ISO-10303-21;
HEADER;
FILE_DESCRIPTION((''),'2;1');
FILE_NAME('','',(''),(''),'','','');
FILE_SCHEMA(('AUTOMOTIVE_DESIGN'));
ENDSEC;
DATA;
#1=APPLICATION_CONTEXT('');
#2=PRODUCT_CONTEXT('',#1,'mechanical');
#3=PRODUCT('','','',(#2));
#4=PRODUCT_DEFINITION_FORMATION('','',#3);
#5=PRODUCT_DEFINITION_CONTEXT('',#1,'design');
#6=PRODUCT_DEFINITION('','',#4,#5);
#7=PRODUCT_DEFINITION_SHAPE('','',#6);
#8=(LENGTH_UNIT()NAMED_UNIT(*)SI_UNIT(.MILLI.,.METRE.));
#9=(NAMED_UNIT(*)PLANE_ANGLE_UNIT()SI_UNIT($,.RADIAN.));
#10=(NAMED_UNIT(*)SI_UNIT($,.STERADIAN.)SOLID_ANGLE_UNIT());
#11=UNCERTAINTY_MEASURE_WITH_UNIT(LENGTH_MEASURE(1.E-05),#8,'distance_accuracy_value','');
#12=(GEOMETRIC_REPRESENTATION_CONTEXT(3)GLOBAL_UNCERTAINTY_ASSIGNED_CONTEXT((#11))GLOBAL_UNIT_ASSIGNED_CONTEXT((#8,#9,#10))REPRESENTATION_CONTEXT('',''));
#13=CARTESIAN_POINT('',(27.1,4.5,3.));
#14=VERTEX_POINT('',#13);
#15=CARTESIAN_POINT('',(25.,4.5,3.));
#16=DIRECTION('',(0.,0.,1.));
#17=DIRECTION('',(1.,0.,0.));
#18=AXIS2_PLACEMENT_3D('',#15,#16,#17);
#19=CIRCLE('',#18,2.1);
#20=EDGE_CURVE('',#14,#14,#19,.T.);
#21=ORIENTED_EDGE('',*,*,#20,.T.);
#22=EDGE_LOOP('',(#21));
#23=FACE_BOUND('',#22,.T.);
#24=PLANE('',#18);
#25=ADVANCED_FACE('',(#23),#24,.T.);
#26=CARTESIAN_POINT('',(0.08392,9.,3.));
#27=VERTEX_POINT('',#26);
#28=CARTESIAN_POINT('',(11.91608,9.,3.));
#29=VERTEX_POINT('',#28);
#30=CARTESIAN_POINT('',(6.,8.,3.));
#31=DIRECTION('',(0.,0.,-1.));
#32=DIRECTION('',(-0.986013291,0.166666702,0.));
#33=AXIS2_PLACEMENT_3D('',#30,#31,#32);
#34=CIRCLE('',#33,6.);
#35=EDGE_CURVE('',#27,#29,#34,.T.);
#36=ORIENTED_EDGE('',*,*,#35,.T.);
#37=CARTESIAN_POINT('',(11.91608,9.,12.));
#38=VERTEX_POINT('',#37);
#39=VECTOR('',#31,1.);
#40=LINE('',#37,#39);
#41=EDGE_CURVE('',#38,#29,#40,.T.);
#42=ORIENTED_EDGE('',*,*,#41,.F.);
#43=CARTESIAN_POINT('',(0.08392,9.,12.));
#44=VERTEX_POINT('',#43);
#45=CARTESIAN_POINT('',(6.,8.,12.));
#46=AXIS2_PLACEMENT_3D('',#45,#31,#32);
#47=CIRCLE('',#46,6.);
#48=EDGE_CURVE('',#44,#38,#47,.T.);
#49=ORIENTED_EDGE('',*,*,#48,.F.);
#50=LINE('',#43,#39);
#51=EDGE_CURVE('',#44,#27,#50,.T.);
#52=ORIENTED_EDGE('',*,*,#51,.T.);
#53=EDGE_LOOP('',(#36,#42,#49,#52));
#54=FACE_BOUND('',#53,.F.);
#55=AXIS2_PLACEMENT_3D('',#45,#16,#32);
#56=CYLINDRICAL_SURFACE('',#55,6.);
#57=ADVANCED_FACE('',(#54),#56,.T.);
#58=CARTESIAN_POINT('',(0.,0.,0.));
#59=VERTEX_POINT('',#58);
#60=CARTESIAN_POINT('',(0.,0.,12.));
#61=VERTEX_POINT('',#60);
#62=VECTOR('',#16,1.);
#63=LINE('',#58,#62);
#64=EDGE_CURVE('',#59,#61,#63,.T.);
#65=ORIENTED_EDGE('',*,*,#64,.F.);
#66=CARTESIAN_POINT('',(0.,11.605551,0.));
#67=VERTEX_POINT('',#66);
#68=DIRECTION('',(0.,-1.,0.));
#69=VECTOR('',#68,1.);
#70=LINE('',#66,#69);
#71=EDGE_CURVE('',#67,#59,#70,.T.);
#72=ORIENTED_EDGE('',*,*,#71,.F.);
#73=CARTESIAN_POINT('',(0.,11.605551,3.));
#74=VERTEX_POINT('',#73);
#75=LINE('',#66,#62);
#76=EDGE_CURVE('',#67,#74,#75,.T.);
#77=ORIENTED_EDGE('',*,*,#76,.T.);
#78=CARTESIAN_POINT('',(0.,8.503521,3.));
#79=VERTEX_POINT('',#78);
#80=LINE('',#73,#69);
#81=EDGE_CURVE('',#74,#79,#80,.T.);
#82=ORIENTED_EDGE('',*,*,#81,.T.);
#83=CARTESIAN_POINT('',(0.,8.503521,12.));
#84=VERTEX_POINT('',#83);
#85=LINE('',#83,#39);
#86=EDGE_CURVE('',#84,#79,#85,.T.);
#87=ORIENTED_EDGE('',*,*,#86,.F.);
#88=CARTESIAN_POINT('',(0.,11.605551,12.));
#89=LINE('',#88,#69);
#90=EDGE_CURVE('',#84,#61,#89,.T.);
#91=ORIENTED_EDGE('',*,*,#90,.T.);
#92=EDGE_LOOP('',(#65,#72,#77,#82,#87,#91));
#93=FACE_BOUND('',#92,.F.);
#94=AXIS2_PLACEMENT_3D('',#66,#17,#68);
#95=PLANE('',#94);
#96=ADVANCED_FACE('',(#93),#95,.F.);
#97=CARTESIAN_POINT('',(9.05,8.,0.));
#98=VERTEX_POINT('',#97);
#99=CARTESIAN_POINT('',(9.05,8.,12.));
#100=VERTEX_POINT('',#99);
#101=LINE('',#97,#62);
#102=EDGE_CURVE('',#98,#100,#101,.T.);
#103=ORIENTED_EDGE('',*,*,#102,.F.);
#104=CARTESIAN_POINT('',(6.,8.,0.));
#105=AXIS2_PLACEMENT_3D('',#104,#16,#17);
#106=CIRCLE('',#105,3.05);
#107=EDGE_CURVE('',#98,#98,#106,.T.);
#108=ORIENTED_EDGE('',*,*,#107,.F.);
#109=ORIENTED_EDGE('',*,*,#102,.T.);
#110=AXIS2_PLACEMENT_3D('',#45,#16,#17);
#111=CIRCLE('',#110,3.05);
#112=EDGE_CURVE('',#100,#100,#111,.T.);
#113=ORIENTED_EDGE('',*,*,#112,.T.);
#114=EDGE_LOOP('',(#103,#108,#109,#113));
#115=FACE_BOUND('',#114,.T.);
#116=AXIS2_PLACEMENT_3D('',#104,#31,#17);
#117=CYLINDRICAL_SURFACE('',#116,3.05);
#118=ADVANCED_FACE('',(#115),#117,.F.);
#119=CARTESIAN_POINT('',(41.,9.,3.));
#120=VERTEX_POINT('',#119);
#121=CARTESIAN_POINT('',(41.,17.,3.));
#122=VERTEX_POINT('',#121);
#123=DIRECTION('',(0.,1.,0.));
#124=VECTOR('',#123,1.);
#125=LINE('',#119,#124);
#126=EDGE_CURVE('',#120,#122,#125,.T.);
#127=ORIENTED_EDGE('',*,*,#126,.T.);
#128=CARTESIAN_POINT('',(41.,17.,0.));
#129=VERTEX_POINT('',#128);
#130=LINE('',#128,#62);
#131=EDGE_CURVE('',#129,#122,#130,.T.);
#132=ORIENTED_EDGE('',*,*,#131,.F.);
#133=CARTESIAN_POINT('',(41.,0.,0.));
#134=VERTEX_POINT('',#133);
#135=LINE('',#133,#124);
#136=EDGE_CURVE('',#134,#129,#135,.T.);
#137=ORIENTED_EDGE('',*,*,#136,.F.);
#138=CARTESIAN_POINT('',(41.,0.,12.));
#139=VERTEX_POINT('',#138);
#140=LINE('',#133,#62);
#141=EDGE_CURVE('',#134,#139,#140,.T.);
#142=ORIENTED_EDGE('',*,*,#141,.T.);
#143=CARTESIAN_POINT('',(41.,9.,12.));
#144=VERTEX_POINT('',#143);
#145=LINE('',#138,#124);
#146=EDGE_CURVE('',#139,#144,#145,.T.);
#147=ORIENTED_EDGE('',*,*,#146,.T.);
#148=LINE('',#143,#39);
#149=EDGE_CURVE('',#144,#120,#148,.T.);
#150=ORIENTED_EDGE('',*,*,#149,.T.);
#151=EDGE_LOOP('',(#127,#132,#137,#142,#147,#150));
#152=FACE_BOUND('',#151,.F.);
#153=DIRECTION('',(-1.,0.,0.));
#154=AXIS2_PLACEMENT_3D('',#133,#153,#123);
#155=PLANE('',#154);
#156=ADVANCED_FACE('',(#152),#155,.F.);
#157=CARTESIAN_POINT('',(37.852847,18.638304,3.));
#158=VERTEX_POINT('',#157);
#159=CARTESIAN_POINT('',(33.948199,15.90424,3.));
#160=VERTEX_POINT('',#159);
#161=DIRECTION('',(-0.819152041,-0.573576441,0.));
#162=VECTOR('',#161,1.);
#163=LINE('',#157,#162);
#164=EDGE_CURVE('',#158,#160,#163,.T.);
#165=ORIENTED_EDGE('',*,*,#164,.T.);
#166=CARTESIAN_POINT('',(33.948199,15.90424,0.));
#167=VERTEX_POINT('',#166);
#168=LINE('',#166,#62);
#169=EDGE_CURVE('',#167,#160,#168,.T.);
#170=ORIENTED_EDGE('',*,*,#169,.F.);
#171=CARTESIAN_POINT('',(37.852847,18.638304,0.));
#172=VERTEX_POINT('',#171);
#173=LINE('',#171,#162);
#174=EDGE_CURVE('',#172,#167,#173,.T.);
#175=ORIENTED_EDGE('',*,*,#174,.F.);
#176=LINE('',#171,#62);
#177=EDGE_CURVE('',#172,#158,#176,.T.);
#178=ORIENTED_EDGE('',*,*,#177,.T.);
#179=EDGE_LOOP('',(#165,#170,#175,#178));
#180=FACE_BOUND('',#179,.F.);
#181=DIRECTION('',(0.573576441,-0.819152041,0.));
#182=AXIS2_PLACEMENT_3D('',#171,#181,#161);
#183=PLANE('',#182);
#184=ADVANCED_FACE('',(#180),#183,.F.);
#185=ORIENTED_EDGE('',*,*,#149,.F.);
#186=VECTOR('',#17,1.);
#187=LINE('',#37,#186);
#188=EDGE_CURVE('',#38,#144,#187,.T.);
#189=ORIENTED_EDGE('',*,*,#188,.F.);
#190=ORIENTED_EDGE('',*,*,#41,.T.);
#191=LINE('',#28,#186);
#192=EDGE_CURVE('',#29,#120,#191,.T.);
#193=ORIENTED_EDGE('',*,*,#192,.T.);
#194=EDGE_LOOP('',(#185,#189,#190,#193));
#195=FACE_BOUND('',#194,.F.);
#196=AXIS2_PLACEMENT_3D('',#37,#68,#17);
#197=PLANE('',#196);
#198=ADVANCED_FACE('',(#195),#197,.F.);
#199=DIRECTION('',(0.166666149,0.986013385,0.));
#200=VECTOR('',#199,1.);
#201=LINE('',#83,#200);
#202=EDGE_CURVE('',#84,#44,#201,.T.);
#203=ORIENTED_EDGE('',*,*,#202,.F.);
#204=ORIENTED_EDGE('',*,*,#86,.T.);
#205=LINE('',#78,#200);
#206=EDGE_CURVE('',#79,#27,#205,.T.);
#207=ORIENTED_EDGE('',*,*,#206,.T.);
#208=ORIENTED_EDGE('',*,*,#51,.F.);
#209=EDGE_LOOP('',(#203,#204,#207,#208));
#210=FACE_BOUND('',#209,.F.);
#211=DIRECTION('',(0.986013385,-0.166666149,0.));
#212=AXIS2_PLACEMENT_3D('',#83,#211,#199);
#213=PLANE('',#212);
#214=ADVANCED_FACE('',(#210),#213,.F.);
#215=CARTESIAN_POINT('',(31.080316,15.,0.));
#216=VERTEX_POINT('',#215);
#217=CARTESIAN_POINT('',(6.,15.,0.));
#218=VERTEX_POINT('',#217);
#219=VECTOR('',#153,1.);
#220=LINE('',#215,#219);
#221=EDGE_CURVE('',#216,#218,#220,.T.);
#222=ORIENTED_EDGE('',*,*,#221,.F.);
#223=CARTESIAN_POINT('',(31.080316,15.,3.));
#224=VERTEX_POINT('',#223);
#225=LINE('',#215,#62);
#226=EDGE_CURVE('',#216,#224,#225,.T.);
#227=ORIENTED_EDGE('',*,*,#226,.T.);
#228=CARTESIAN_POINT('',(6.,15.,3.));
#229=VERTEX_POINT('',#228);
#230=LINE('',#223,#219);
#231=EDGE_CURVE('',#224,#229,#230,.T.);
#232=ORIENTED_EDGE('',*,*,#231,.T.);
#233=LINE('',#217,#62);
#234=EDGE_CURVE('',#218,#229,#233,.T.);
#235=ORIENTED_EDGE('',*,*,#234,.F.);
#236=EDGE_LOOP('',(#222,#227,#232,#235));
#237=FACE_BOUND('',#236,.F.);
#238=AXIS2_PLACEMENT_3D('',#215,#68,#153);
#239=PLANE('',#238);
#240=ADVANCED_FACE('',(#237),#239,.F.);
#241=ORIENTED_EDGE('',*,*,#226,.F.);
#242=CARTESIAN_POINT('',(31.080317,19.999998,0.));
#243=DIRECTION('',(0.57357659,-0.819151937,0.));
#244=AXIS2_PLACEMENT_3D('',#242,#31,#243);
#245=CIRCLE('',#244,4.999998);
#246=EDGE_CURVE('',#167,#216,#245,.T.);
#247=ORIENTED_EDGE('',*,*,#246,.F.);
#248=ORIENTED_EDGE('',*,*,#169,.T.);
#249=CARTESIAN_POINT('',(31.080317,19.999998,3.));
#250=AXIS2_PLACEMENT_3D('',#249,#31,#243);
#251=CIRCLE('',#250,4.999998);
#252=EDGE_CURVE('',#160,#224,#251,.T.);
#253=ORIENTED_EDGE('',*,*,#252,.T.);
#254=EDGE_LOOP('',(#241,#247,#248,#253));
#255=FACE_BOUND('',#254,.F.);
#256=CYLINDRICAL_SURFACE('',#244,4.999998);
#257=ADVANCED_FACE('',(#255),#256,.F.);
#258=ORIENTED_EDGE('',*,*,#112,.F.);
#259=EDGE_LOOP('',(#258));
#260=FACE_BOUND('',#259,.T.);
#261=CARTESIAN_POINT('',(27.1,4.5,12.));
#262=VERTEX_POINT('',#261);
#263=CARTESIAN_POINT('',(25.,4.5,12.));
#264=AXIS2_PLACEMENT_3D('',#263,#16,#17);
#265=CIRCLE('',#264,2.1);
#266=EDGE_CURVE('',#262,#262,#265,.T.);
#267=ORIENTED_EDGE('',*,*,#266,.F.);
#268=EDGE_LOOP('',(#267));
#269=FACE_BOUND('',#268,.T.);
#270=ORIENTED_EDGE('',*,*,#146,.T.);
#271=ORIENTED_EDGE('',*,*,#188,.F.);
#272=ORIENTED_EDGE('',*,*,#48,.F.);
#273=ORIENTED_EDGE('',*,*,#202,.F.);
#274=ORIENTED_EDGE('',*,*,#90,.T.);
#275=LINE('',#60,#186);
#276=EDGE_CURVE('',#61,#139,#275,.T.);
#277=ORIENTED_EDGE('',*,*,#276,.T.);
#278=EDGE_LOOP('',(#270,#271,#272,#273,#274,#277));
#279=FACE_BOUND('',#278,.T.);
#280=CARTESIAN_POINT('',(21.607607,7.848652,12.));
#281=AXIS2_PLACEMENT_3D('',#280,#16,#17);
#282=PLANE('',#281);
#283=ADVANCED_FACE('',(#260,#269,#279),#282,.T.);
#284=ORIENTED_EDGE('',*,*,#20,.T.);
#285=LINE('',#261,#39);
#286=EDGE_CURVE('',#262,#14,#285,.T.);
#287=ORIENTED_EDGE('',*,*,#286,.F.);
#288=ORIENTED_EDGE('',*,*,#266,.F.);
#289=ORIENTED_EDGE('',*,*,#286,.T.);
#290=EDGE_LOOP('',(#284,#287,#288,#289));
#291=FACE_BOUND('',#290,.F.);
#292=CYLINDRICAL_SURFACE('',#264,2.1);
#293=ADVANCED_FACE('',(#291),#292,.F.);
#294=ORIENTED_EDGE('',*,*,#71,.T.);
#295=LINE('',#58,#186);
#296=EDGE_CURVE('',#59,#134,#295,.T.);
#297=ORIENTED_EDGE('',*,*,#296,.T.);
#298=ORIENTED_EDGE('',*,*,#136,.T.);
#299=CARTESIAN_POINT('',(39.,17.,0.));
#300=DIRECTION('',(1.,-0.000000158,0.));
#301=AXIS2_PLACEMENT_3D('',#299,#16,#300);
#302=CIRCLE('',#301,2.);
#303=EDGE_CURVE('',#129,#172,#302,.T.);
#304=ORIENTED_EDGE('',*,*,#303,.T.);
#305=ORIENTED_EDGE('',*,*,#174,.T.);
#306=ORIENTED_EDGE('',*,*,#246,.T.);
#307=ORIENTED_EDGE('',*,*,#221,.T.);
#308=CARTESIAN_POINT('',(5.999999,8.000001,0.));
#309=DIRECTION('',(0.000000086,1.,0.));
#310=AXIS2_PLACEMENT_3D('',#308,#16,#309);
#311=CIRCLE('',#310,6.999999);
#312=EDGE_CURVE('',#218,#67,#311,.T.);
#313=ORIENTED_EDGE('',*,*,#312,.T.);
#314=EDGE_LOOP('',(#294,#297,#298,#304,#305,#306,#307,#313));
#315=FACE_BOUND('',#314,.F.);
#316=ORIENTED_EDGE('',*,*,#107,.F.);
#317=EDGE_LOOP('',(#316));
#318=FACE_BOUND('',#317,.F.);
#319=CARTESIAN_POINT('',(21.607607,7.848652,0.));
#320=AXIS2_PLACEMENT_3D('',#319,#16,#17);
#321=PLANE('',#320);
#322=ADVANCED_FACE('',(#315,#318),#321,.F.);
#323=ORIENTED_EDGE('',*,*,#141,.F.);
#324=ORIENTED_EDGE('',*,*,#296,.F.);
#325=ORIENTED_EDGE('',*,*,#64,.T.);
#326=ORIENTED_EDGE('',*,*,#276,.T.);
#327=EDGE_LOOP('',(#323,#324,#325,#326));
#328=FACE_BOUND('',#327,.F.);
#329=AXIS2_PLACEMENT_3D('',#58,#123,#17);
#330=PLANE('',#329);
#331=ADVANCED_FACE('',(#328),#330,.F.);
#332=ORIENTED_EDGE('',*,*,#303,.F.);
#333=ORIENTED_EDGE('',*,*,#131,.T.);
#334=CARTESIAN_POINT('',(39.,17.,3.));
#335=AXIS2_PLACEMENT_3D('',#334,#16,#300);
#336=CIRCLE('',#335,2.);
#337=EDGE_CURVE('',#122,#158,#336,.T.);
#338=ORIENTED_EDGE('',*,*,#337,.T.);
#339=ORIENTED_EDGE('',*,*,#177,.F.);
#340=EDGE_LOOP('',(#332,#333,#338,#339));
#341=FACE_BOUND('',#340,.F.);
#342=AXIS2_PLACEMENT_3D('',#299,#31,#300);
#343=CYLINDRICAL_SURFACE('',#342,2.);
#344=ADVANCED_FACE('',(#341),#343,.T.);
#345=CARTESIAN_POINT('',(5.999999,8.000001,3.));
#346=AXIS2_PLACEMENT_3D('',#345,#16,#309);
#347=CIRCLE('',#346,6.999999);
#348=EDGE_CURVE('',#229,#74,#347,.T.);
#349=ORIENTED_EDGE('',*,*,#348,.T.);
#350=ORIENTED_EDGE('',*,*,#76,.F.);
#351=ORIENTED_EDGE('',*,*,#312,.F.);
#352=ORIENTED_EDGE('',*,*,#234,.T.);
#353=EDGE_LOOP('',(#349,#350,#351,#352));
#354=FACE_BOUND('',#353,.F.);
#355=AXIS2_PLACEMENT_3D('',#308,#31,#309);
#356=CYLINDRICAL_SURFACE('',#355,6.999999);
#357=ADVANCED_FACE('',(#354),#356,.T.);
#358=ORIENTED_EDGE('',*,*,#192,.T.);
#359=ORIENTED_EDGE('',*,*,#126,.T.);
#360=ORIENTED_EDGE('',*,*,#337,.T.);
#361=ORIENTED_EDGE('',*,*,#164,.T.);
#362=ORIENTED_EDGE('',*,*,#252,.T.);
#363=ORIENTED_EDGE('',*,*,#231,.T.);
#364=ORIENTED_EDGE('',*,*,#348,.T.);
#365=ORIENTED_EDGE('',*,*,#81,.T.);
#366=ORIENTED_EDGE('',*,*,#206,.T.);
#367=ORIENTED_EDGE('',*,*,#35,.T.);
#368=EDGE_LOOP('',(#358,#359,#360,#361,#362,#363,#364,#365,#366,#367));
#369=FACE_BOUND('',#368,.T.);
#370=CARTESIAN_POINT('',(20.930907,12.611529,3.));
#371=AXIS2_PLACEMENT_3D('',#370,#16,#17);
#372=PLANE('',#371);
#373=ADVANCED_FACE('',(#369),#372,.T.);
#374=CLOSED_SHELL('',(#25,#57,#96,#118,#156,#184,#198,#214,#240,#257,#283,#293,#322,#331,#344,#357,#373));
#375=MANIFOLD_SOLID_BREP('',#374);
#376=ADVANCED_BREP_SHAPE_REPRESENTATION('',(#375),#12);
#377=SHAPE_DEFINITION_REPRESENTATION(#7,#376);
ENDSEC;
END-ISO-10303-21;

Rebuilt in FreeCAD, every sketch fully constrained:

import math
import FreeCAD as App
import Part
import Sketcher

V = App.Vector
Q = App.Units.Quantity

doc = App.newDocument("Part")
body = doc.addObject("PartDesign::Body", "Body")

# Sketch on XY plane
sketch1 = body.newObject("Sketcher::SketchObject", "Sketch")
sketch1.AttachmentSupport = (doc.getObject("XY_Plane"), [""])
sketch1.MapMode = "FlatFace"
sketch1.addGeometry([
    Part.LineSegment(V(0, 11.6, 0), V(0, 0, 0)),  # 0
    Part.LineSegment(V(0, 0, 0), V(41, 0, 0)),  # 1
    Part.LineSegment(V(41, 0, 0), V(41, 17, 0)),  # 2
    Part.ArcOfCircle(Part.Circle(V(39, 17, 0), V(0, 0, 1), 2), math.radians(0), math.radians(125)),  # 3
    Part.LineSegment(V(37.9, 18.6, 0), V(33.9, 15.9, 0)),  # 4
    Part.ArcOfCircle(Part.Circle(V(31.1, 20, 0), V(0, 0, 1), 5), math.radians(-90), math.radians(-55)),  # 5
    Part.LineSegment(V(31.1, 15, 0), V(6, 15, 0)),  # 6
    Part.ArcOfCircle(Part.Circle(V(6, 8, 0), V(0, 0, 1), 7), math.radians(90), math.radians(149)),  # 7
    Part.Circle(V(6, 8, 0), V(0, 0, 1), 3),  # 8
], False)
sketch1.addConstraint([
    Sketcher.Constraint("Coincident", 0, 2, 1, 1),
    Sketcher.Constraint("Coincident", 1, 2, 2, 1),
    Sketcher.Constraint("Tangent", 2, 2, 3, 1),
    Sketcher.Constraint("Tangent", 3, 2, 4, 1),
    Sketcher.Constraint("Tangent", 4, 2, 5, 2),
    Sketcher.Constraint("Tangent", 5, 1, 6, 1),
    Sketcher.Constraint("Tangent", 6, 2, 7, 1),
    Sketcher.Constraint("Coincident", 7, 2, 0, 1),
    Sketcher.Constraint("Vertical", 0),
    Sketcher.Constraint("Horizontal", 1),
    Sketcher.Constraint("Vertical", 2),
    Sketcher.Constraint("Horizontal", 6),
    Sketcher.Constraint("Coincident", 0, 2, -1, 1),
    Sketcher.Constraint("Coincident", 8, 3, 7, 3),
    Sketcher.Constraint("Radius", 3, Q("2 mm")),
    Sketcher.Constraint("Radius", 5, Q("4.999998 mm")),
    Sketcher.Constraint("Radius", 7, Q("6.999999 mm")),
    Sketcher.Constraint("Diameter", 8, Q("6.1 mm")),
    Sketcher.Constraint("DistanceX", 1, 1, 1, 2, Q("41 mm")),
    Sketcher.Constraint("DistanceY", 2, 1, 2, 2, Q("17 mm")),
    Sketcher.Constraint("Angle", 4, Q("-145 deg")),
    Sketcher.Constraint("DistanceY", -1, 1, 5, 3, Q("19.999998 mm")),
    Sketcher.Constraint("DistanceX", -1, 1, 7, 3, Q("5.999999 mm")),
])
pad1 = body.newObject("PartDesign::Pad", "Pad")
pad1.Profile = sketch1
pad1.Length = 12

# Sketch on XY plane
sketch2 = body.newObject("Sketcher::SketchObject", "Sketch001")
sketch2.AttachmentSupport = (doc.getObject("XY_Plane"), [""])
sketch2.MapMode = "FlatFace"
sketch2.AttachmentOffset = App.Placement(V(0, 0, 12), App.Rotation())
sketch2.addGeometry([
    Part.LineSegment(V(11.9, 9, 0), V(41, 9, 0)),  # 0
    Part.LineSegment(V(41, 9, 0), V(41, 17, 0)),  # 1
    Part.ArcOfCircle(Part.Circle(V(39, 17, 0), V(0, 0, 1), 2), math.radians(0), math.radians(125)),  # 2
    Part.LineSegment(V(37.9, 18.6, 0), V(33.9, 15.9, 0)),  # 3
    Part.ArcOfCircle(Part.Circle(V(31.1, 20, 0), V(0, 0, 1), 5), math.radians(-90), math.radians(-55)),  # 4
    Part.LineSegment(V(31.1, 15, 0), V(6, 15, 0)),  # 5
    Part.ArcOfCircle(Part.Circle(V(6, 8, 0), V(0, 0, 1), 7), math.radians(90), math.radians(149)),  # 6
    Part.LineSegment(V(0, 11.6, 0), V(0, 8.5, 0)),  # 7
    Part.LineSegment(V(0, 8.5, 0), V(0.1, 9, 0)),  # 8
    Part.ArcOfCircle(Part.Circle(V(6, 8, 0), V(0, 0, 1), 6), math.radians(10), math.radians(170)),  # 9
    Part.Circle(V(25, 4.5, 0), V(0, 0, 1), 2.1),  # 10
], False)
sketch2.addConstraint([
    Sketcher.Constraint("Coincident", 0, 2, 1, 1),
    Sketcher.Constraint("Tangent", 1, 2, 2, 1),
    Sketcher.Constraint("Tangent", 2, 2, 3, 1),
    Sketcher.Constraint("Tangent", 3, 2, 4, 2),
    Sketcher.Constraint("Tangent", 4, 1, 5, 1),
    Sketcher.Constraint("Tangent", 5, 2, 6, 1),
    Sketcher.Constraint("Coincident", 6, 2, 7, 1),
    Sketcher.Constraint("Coincident", 7, 2, 8, 1),
    Sketcher.Constraint("Tangent", 8, 2, 9, 2),
    Sketcher.Constraint("Coincident", 9, 1, 0, 1),
    Sketcher.Constraint("Horizontal", 0),
    Sketcher.Constraint("Vertical", 1),
    Sketcher.Constraint("Horizontal", 5),
    Sketcher.Constraint("Vertical", 7),
    Sketcher.Constraint("Coincident", 9, 3, 6, 3),
    Sketcher.Constraint("PointOnObject", 6, 2, -2),
    Sketcher.Constraint("Horizontal", 0, 2, 8, 2),
    Sketcher.Constraint("Radius", 2, Q("2 mm")),
    Sketcher.Constraint("Radius", 4, Q("4.999998 mm")),
    Sketcher.Constraint("Radius", 6, Q("6.999999 mm")),
    Sketcher.Constraint("Radius", 9, Q("6 mm")),
    Sketcher.Constraint("Diameter", 10, Q("4.2 mm")),
    Sketcher.Constraint("DistanceY", 1, 1, 1, 2, Q("8 mm")),
    Sketcher.Constraint("Angle", 3, Q("-145 deg")),
    Sketcher.Constraint("DistanceX", -1, 1, 2, 3, Q("39 mm")),
    Sketcher.Constraint("DistanceY", -1, 1, 2, 3, Q("17 mm")),
    Sketcher.Constraint("DistanceY", -1, 1, 4, 3, Q("19.999998 mm")),
    Sketcher.Constraint("DistanceX", -1, 1, 6, 3, Q("5.999999 mm")),
    Sketcher.Constraint("DistanceX", -1, 1, 10, 3, Q("25 mm")),
    Sketcher.Constraint("DistanceY", -1, 1, 10, 3, Q("4.5 mm")),
])
pocket1 = body.newObject("PartDesign::Pocket", "Pocket")
pocket1.Profile = sketch2
pocket1.Length = 9

doc.recompute()
